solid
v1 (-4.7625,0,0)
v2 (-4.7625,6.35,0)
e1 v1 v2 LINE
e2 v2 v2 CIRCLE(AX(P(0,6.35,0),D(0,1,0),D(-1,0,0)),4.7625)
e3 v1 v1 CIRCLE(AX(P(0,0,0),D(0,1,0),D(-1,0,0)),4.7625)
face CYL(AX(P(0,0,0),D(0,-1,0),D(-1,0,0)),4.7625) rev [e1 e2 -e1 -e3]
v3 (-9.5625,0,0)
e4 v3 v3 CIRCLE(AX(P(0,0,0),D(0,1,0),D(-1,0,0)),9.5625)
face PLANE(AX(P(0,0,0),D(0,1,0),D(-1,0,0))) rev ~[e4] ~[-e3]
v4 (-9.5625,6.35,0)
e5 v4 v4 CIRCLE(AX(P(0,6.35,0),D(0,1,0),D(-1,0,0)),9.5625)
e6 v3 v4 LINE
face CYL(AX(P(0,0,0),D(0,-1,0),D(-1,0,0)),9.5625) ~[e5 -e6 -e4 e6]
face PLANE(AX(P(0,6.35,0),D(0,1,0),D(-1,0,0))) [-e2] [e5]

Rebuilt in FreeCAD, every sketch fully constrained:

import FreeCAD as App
import Part
import Sketcher
from FreeCAD import Vector
Q = App.Units.Quantity

doc = App.newDocument("Part")
body = doc.addObject("PartDesign::Body", "Body")

# Sketch on XZ plane
sketch1 = body.newObject("Sketcher::SketchObject", "Sketch")
sketch1.AttachmentSupport = (doc.getObject("XZ_Plane"), [""])
sketch1.MapMode = "FlatFace"
sketch1.addGeometry([
    Part.Circle(Vector(0, 0, 0), Vector(0, 0, 1), 9.6),
    Part.Circle(Vector(0, 0, 0), Vector(0, 0, 1), 4.8),
], False)
sketch1.addConstraint([
    Sketcher.Constraint("Coincident", 0, 3, -1, 1),
    Sketcher.Constraint("Coincident", 1, 3, -1, 1),
    Sketcher.Constraint("Diameter", 1, Q("0.375 in")),
    Sketcher.Constraint("Diameter", 0, Q("19.125 mm")),
])
pad1 = body.newObject("PartDesign::Pad", "Pad")
pad1.Profile = sketch1
pad1.Length = Q("0.25 in")
pad1.Reversed = True

doc.recompute()
